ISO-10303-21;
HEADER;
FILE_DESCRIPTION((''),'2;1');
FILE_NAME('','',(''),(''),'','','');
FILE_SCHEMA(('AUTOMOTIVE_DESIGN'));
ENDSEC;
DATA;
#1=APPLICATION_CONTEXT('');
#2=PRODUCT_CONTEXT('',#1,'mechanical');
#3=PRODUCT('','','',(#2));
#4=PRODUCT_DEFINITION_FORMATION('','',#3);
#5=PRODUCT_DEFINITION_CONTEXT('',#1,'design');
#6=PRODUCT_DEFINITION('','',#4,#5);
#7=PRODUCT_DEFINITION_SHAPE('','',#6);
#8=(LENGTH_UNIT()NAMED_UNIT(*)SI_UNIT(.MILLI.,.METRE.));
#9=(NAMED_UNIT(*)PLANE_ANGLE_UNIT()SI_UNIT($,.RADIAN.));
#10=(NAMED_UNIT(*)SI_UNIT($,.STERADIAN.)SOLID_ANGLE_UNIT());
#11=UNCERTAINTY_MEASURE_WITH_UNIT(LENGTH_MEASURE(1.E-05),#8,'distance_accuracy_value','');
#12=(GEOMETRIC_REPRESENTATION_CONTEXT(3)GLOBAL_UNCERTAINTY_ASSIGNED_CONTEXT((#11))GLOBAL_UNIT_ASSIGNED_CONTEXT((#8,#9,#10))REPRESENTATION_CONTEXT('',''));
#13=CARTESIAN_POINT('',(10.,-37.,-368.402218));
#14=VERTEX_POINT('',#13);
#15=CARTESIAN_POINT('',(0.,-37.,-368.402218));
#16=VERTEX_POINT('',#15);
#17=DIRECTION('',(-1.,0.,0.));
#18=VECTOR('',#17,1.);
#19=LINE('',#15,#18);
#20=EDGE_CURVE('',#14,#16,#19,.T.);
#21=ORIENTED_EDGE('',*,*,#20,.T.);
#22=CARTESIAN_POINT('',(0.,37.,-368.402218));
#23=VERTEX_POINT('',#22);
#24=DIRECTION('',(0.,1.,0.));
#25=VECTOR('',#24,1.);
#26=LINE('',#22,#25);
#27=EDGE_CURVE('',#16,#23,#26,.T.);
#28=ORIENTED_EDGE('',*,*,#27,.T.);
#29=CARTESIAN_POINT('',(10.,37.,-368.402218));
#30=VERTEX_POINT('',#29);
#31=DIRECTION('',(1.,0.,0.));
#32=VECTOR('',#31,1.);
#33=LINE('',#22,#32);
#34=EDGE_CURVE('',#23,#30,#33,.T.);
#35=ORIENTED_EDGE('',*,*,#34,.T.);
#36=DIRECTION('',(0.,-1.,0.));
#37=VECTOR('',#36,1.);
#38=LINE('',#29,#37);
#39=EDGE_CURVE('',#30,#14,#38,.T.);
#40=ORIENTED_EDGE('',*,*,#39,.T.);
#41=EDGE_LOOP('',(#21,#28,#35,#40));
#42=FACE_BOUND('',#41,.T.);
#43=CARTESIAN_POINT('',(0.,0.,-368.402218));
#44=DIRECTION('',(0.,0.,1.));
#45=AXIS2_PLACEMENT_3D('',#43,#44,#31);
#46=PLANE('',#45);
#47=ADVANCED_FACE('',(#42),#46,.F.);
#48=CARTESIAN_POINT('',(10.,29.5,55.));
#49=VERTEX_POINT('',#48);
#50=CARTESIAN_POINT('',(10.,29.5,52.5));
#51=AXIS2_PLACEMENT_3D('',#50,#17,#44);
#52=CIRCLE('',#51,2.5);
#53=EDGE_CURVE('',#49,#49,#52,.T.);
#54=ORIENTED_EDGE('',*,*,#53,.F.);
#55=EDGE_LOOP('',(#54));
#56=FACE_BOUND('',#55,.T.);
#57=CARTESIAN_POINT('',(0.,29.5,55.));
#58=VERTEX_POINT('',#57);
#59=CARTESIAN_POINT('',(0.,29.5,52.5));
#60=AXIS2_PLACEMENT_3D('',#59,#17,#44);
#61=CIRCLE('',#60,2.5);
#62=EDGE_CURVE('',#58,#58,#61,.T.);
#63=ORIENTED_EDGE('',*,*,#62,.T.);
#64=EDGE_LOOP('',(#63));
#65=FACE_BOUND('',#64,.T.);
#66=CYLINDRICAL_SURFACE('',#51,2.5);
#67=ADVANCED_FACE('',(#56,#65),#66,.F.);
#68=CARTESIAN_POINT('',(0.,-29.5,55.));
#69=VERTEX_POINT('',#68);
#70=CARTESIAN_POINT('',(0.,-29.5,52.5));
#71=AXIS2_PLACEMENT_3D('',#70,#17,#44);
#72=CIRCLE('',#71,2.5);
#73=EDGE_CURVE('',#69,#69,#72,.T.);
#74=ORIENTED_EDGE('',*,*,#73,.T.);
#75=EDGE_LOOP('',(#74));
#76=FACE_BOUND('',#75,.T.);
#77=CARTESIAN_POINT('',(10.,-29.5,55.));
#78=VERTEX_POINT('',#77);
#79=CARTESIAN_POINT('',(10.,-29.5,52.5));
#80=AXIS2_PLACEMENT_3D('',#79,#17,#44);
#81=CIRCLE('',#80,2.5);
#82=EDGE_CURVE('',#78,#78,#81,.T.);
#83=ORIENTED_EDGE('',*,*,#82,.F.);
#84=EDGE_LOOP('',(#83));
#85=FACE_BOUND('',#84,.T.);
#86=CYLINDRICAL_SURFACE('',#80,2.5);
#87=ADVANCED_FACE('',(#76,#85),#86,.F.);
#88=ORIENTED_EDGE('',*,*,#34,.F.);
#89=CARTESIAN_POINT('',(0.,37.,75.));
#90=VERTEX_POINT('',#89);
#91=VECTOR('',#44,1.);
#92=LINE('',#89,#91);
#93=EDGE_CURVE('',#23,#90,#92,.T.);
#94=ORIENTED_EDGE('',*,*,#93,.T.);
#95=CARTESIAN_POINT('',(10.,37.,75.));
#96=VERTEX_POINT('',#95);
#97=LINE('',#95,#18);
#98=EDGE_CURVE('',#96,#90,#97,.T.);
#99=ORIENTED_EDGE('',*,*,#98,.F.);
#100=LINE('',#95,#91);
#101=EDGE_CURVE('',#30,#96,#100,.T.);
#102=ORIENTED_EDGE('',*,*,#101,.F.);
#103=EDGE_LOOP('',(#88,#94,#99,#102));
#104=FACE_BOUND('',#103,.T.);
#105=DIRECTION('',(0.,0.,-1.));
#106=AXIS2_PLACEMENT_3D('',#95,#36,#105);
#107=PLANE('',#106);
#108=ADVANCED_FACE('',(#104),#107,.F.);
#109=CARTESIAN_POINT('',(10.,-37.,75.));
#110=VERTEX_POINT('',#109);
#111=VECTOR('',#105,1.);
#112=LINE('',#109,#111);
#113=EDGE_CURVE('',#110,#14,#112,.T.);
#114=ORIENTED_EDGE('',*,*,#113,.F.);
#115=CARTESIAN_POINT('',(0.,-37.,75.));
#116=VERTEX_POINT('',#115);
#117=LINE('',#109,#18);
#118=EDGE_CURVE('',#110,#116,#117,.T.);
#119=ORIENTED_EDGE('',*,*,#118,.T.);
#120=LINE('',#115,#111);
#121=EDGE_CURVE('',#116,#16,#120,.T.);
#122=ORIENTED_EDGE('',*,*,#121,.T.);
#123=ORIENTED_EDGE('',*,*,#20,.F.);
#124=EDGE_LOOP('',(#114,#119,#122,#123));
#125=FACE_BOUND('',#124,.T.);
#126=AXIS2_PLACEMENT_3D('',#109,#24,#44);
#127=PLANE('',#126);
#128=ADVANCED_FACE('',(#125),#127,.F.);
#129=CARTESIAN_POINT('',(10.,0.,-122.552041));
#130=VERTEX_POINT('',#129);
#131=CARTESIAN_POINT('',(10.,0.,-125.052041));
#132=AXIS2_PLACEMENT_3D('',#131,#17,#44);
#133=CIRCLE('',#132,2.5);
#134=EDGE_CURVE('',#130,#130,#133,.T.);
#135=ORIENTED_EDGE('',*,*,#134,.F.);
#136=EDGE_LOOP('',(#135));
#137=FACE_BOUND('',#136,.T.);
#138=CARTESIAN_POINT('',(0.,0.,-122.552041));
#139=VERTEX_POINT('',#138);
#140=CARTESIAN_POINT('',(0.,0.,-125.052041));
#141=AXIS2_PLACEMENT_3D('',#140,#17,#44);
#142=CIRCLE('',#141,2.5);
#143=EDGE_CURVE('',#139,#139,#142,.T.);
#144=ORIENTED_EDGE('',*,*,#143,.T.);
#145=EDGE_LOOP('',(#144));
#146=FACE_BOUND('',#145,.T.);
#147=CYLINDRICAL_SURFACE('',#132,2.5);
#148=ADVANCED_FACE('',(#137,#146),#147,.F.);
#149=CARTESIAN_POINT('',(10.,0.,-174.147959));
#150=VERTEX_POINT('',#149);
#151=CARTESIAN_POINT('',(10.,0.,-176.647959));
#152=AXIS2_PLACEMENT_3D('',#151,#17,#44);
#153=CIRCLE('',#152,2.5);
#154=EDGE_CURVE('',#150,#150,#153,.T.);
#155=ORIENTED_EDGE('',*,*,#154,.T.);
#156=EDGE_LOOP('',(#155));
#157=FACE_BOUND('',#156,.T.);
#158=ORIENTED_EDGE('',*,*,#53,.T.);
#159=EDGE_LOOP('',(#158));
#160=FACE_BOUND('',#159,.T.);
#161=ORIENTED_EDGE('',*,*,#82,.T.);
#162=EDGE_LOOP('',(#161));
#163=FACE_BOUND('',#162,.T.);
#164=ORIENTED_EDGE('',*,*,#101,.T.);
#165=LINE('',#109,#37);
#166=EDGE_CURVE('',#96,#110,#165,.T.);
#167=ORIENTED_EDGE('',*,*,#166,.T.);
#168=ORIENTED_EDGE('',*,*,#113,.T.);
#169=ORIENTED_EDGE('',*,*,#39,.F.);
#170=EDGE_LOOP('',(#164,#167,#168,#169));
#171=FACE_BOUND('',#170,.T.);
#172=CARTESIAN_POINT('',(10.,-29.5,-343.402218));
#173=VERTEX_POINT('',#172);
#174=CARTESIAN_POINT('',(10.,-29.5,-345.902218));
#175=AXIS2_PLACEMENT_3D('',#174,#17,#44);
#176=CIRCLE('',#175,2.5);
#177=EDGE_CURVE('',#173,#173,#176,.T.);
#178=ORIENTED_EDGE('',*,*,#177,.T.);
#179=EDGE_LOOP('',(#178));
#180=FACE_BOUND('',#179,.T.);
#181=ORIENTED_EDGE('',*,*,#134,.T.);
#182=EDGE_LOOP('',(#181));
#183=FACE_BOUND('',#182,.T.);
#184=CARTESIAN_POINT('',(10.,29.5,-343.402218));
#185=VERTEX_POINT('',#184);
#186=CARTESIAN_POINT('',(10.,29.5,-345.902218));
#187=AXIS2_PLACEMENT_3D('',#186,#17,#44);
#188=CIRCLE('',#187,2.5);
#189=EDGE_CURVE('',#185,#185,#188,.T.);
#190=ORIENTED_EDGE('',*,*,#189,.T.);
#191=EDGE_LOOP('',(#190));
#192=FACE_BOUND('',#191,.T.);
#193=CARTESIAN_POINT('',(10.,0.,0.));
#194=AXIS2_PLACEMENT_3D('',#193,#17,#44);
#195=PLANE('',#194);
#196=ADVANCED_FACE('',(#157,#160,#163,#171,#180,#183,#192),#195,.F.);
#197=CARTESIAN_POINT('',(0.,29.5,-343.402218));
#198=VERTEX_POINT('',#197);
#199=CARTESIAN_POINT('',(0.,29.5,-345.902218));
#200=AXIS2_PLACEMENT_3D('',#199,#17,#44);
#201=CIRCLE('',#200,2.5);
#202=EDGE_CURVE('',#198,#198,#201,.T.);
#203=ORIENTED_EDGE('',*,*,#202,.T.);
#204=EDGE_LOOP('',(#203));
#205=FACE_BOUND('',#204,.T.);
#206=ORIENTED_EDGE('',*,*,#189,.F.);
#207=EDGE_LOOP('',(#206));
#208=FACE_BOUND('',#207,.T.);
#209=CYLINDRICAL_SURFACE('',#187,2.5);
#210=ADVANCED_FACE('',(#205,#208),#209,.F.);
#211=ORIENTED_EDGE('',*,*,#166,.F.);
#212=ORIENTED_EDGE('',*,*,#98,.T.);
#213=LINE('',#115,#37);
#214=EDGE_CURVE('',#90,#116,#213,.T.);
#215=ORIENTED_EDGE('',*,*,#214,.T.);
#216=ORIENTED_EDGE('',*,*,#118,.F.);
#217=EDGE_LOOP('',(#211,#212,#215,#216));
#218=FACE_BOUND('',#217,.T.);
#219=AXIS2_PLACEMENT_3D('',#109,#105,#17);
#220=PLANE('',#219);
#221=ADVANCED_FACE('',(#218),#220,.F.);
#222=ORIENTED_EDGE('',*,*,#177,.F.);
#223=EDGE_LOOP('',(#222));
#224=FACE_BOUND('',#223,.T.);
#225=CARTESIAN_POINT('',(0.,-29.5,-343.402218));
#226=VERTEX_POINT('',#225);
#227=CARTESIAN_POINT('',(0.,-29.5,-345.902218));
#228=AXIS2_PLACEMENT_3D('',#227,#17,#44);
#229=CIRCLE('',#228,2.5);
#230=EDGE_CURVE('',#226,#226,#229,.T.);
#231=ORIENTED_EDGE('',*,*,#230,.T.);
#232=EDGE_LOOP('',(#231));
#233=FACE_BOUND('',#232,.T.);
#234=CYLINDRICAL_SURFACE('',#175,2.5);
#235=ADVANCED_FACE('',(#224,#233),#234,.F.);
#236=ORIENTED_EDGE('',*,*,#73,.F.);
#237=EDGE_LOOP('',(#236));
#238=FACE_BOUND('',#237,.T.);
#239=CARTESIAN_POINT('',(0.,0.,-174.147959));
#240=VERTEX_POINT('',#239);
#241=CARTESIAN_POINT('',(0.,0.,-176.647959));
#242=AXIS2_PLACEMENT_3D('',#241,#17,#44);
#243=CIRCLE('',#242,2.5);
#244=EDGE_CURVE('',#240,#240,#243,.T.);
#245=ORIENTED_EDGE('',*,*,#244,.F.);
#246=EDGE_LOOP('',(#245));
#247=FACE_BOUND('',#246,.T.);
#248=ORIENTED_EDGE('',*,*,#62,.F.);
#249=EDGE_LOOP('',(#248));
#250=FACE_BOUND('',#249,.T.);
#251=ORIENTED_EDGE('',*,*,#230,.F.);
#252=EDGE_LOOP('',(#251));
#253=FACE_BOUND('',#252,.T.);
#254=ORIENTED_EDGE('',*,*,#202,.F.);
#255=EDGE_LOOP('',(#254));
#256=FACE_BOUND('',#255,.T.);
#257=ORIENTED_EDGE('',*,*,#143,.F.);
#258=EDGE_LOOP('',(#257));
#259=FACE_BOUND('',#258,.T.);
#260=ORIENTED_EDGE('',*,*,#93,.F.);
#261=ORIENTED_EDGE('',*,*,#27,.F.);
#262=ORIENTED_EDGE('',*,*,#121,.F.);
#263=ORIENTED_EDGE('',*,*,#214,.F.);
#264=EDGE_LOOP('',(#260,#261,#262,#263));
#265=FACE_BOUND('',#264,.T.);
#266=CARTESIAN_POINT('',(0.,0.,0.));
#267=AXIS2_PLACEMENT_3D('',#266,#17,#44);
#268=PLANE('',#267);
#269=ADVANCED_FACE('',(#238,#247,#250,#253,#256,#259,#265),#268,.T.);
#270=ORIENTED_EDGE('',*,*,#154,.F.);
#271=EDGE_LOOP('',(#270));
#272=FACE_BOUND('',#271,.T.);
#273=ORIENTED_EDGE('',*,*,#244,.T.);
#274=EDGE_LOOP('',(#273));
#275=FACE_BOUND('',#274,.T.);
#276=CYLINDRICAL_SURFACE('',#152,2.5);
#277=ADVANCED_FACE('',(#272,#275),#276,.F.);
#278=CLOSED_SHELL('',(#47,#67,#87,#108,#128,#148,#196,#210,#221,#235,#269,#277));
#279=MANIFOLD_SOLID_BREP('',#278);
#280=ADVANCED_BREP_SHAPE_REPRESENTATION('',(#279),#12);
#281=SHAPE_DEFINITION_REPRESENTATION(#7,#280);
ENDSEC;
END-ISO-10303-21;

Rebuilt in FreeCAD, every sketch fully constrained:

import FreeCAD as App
import Part
import Sketcher

doc = App.newDocument("Part")
body = doc.addObject("PartDesign::Body", "Body")

# Sketch on YZ plane
sketch1 = body.newObject("Sketcher::SketchObject", "Sketch")
sketch1.AttachmentSupport = (doc.getObject("YZ_Plane"), [""])
sketch1.MapMode = "FlatFace"
sketch1.addGeometry([
    Part.LineSegment(App.Vector(37, 75, 0), App.Vector(-37, 75, 0)),
    Part.LineSegment(App.Vector(-37, 75, 0), App.Vector(-37, -75, 0)),
    Part.LineSegment(App.Vector(-37, -75, 0), App.Vector(37, -75, 0)),
    Part.LineSegment(App.Vector(37, -75, 0), App.Vector(37, 75, 0)),
], False)
sketch1.addConstraint([
    Sketcher.Constraint("Coincident", 0, 2, 1, 1),
    Sketcher.Constraint("Coincident", 1, 2, 2, 1),
    Sketcher.Constraint("Coincident", 2, 2, 3, 1),
    Sketcher.Constraint("Coincident", 3, 2, 0, 1),
    Sketcher.Constraint("Horizontal", 0),
    Sketcher.Constraint("Vertical", 1),
    Sketcher.Constraint("Horizontal", 2),
    Sketcher.Constraint("Vertical", 3),
    Sketcher.Constraint("Symmetric", 0, 2, 2, 2, -1, 1),
    Sketcher.Constraint("DistanceX", 0, 2, 0, 1, 74.0),
    Sketcher.Constraint("DistanceY", 1, 2, 1, 1, 150.0),
])
pad1 = body.newObject("PartDesign::Pad", "Pad")
pad1.Profile = sketch1
pad1.Length = 10

# Sketch on XY plane
sketch2 = body.newObject("Sketcher::SketchObject", "Sketch001")
sketch2.AttachmentSupport = (doc.getObject("XY_Plane"), [""])
sketch2.MapMode = "FlatFace"
sketch2.AttachmentOffset = App.Placement(App.Vector(0, 0, -75), App.Rotation())
sketch2.addGeometry([
    Part.LineSegment(App.Vector(10, 37, 0), App.Vector(10, -37, 0)),
    Part.LineSegment(App.Vector(10, -37, 0), App.Vector(0, -37, 0)),
    Part.LineSegment(App.Vector(0, -37, 0), App.Vector(0, 37, 0)),
    Part.LineSegment(App.Vector(0, 37, 0), App.Vector(10, 37, 0)),
], False)
sketch2.addConstraint([
    Sketcher.Constraint("Coincident", 0, 2, 1, 1),
    Sketcher.Constraint("Coincident", 1, 2, 2, 1),
    Sketcher.Constraint("Coincident", 2, 2, 3, 1),
    Sketcher.Constraint("Coincident", 3, 2, 0, 1),
    Sketcher.Constraint("Vertical", 0),
    Sketcher.Constraint("Horizontal", 1),
    Sketcher.Constraint("Vertical", 2),
    Sketcher.Constraint("Horizontal", 3),
    Sketcher.Constraint("Symmetric", 1, 2, 2, 2, -1, 1),
    Sketcher.Constraint("DistanceX", 1, 2, 1, 1, 10.0),
    Sketcher.Constraint("DistanceY", 0, 2, 0, 1, 74.0),
])
pad2 = body.newObject("PartDesign::Pad", "Pad001")
pad2.Profile = sketch2
pad2.Length = 283.402218
pad2.Reversed = True

# Sketch on XY plane
sketch3 = body.newObject("Sketcher::SketchObject", "Sketch002")
sketch3.AttachmentSupport = (doc.getObject("XY_Plane"), [""])
sketch3.MapMode = "FlatFace"
sketch3.AttachmentOffset = App.Placement(App.Vector(0, 0, -358.402218), App.Rotation())
sketch3.addGeometry([
    Part.LineSegment(App.Vector(10, 37, 0), App.Vector(10, -37, 0)),
    Part.LineSegment(App.Vector(10, -37, 0), App.Vector(0, -37, 0)),
    Part.LineSegment(App.Vector(0, -37, 0), App.Vector(0, 37, 0)),
    Part.LineSegment(App.Vector(0, 37, 0), App.Vector(10, 37, 0)),
], False)
sketch3.addConstraint([
    Sketcher.Constraint("Coincident", 0, 2, 1, 1),
    Sketcher.Constraint("Coincident", 1, 2, 2, 1),
    Sketcher.Constraint("Coincident", 2, 2, 3, 1),
    Sketcher.Constraint("Coincident", 3, 2, 0, 1),
    Sketcher.Constraint("Vertical", 0),
    Sketcher.Constraint("Horizontal", 1),
    Sketcher.Constraint("Vertical", 2),
    Sketcher.Constraint("Horizontal", 3),
    Sketcher.Constraint("Symmetric", 1, 2, 2, 2, -1, 1),
    Sketcher.Constraint("DistanceX", 1, 2, 1, 1, 10.0),
    Sketcher.Constraint("DistanceY", 0, 2, 0, 1, 74.0),
])
pad3 = body.newObject("PartDesign::Pad", "Pad002")
pad3.Profile = sketch3
pad3.Length = 10
pad3.Reversed = True

# Sketch on YZ plane
sketch4 = body.newObject("Sketcher::SketchObject", "Sketch003")
sketch4.AttachmentSupport = (doc.getObject("YZ_Plane"), [""])
sketch4.MapMode = "FlatFace"
sketch4.addGeometry([
    Part.Circle(App.Vector(-29.5, 52.5, 0), App.Vector(0, 0, 1), 2.5),
    Part.Circle(App.Vector(29.5, 52.5, 0), App.Vector(0, 0, 1), 2.5),
    Part.Circle(App.Vector(29.5, -345.902218, 0), App.Vector(0, 0, 1), 2.5),
    Part.Circle(App.Vector(-29.5, -345.902218, 0), App.Vector(0, 0, 1), 2.5),
], False)
sketch4.addConstraint([
    Sketcher.Constraint("Equal", 0, 1),
    Sketcher.Constraint("Equal", 1, 2),
    Sketcher.Constraint("Equal", 2, 3),
    Sketcher.Constraint("Symmetric", 0, 3, 1, 3, -2),
    Sketcher.Constraint("Symmetric", 2, 3, 3, 3, -2),
    Sketcher.Constraint("Vertical", 1, 3, 2, 3),
    Sketcher.Constraint("Diameter", 0, 5.0),
    Sketcher.Constraint("DistanceX", 0, 3, 1, 3, 59.0),
    Sketcher.Constraint("DistanceY", -1, 1, 0, 3, 52.5),
    Sketcher.Constraint("DistanceY", 2, 3, -1, 1, 345.902218),
])
pocket1 = body.newObject("PartDesign::Pocket", "Pocket")
pocket1.Profile = sketch4
pocket1.Length = 10
pocket1.Reversed = True

# Sketch on YZ plane
sketch5 = body.newObject("Sketcher::SketchObject", "Sketch004")
sketch5.AttachmentSupport = (doc.getObject("YZ_Plane"), [""])
sketch5.MapMode = "FlatFace"
sketch5.addGeometry([
    Part.Circle(App.Vector(0, -125.052041, 0), App.Vector(0, 0, 1), 2.5),
    Part.Circle(App.Vector(0, -176.647959, 0), App.Vector(0, 0, 1), 2.5),
], False)
sketch5.addConstraint([
    Sketcher.Constraint("Equal", 0, 1),
    Sketcher.Constraint("PointOnObject", 0, 3, -2),
    Sketcher.Constraint("PointOnObject", 1, 3, -2),
    Sketcher.Constraint("Diameter", 0, 5.0),
    Sketcher.Constraint("DistanceY", 0, 3, -1, 1, 125.052041),
    Sketcher.Constraint("DistanceY", 1, 3, -1, 1, 176.647959),
])
pocket2 = body.newObject("PartDesign::Pocket", "Pocket001")
pocket2.Profile = sketch5
pocket2.Length = 10
pocket2.Reversed = True

doc.recompute()
